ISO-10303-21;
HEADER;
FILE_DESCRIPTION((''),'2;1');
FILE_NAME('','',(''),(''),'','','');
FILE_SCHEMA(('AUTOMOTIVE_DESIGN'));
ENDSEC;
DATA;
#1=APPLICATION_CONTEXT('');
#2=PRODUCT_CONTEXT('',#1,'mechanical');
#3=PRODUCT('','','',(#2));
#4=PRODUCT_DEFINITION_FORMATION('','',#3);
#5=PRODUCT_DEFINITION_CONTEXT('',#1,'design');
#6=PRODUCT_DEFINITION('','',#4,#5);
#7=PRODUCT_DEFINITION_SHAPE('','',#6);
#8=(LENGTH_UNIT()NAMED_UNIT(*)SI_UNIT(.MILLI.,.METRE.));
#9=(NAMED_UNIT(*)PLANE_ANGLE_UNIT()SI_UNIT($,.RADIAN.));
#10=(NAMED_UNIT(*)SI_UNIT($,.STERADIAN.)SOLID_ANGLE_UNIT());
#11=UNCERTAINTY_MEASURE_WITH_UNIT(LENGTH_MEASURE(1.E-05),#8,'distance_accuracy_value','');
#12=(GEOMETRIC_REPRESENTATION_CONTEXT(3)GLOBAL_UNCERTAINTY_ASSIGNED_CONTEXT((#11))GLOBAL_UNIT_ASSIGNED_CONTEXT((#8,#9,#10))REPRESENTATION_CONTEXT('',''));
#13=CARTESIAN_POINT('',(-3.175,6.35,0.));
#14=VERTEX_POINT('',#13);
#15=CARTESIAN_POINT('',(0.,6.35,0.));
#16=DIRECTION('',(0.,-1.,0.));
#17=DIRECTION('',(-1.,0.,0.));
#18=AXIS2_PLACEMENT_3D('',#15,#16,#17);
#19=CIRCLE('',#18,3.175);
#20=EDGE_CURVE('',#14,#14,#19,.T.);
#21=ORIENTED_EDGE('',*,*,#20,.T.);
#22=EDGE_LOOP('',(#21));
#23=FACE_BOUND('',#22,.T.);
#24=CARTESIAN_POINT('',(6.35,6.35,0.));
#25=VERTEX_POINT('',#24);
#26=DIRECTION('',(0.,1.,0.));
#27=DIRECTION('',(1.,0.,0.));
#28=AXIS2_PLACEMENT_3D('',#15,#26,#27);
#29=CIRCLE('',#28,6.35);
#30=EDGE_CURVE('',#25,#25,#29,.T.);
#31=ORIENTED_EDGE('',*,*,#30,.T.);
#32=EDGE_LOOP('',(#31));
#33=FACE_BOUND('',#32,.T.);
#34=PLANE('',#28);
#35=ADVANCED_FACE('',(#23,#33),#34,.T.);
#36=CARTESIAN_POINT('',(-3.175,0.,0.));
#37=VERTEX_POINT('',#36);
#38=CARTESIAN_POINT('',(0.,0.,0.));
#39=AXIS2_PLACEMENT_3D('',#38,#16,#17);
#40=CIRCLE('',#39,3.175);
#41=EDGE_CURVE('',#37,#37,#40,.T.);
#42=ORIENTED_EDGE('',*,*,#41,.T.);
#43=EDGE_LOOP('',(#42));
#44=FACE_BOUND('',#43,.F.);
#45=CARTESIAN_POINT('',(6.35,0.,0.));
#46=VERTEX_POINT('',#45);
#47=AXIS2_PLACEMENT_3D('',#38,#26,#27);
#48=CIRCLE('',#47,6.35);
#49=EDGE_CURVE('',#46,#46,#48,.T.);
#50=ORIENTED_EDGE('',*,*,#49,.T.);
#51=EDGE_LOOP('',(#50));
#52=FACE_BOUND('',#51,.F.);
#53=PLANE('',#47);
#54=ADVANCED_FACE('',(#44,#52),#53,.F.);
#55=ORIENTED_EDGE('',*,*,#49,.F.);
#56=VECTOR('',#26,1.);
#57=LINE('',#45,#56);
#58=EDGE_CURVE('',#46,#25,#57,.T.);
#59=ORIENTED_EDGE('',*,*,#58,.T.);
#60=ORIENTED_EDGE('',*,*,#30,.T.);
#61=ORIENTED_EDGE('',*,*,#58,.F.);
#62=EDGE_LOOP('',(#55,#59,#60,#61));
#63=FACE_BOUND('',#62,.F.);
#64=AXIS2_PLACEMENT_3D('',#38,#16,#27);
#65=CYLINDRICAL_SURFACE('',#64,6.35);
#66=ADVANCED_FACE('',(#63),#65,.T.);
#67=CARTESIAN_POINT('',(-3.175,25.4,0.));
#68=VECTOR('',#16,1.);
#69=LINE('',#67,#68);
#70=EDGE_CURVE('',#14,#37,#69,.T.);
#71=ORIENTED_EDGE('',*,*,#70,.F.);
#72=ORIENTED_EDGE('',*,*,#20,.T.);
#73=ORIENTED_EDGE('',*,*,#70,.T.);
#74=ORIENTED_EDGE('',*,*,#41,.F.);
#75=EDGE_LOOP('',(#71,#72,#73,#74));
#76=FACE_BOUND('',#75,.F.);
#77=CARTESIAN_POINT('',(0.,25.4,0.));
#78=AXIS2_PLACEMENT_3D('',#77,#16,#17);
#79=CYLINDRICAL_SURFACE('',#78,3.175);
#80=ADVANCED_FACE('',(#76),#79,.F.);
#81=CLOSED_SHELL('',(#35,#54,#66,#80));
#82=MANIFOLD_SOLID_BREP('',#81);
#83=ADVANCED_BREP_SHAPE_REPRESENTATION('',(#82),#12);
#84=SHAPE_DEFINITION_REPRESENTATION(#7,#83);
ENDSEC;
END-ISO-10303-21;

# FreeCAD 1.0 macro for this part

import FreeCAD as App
import Part
import Sketcher

V = App.Vector
Q = App.Units.Quantity

doc = App.newDocument("Part")
body = doc.addObject("PartDesign::Body", "Body")

sketch1 = body.newObject("Sketcher::SketchObject", "Sketch")
sketch1.AttachmentSupport = (doc.getObject("XZ_Plane"), [""])
sketch1.MapMode = "FlatFace"
sketch1.addGeometry(Part.Circle(V(0, 0, 0), V(0, 0, 1), 6), False)
sketch1.addConstraint([
    Sketcher.Constraint("Coincident", 0, 3, -1, 1),
    Sketcher.Constraint("Diameter", 0, Q("0.5 in")),
])
pad1 = body.newObject("PartDesign::Pad", "Pad")
pad1.Profile = sketch1
pad1.Length = Q("0.25 in")
pad1.Reversed = True

sketch2 = body.newObject("Sketcher::SketchObject", "Sketch001")
sketch2.AttachmentSupport = (doc.getObject("XZ_Plane"), [""])
sketch2.MapMode = "FlatFace"
sketch2.AttachmentOffset = App.Placement(V(0, 0, -0.25 * 25.4), App.Rotation())
sketch2.addGeometry(Part.Circle(V(0, 0, 0), V(0, 0, 1), 3.2), False)
sketch2.addConstraint([
    Sketcher.Constraint("Coincident", 0, 3, -1, 1),
    Sketcher.Constraint("Diameter", 0, Q("0.25 in")),
])
doc.recompute()
hole = body.newObject("PartDesign::Hole", "Hole")
hole.Profile = sketch2
hole.ThreadType = "None"
hole.Diameter = Q("0.25 in")
hole.DepthType = "ThroughAll"
hole.Reversed = True

doc.recompute()
